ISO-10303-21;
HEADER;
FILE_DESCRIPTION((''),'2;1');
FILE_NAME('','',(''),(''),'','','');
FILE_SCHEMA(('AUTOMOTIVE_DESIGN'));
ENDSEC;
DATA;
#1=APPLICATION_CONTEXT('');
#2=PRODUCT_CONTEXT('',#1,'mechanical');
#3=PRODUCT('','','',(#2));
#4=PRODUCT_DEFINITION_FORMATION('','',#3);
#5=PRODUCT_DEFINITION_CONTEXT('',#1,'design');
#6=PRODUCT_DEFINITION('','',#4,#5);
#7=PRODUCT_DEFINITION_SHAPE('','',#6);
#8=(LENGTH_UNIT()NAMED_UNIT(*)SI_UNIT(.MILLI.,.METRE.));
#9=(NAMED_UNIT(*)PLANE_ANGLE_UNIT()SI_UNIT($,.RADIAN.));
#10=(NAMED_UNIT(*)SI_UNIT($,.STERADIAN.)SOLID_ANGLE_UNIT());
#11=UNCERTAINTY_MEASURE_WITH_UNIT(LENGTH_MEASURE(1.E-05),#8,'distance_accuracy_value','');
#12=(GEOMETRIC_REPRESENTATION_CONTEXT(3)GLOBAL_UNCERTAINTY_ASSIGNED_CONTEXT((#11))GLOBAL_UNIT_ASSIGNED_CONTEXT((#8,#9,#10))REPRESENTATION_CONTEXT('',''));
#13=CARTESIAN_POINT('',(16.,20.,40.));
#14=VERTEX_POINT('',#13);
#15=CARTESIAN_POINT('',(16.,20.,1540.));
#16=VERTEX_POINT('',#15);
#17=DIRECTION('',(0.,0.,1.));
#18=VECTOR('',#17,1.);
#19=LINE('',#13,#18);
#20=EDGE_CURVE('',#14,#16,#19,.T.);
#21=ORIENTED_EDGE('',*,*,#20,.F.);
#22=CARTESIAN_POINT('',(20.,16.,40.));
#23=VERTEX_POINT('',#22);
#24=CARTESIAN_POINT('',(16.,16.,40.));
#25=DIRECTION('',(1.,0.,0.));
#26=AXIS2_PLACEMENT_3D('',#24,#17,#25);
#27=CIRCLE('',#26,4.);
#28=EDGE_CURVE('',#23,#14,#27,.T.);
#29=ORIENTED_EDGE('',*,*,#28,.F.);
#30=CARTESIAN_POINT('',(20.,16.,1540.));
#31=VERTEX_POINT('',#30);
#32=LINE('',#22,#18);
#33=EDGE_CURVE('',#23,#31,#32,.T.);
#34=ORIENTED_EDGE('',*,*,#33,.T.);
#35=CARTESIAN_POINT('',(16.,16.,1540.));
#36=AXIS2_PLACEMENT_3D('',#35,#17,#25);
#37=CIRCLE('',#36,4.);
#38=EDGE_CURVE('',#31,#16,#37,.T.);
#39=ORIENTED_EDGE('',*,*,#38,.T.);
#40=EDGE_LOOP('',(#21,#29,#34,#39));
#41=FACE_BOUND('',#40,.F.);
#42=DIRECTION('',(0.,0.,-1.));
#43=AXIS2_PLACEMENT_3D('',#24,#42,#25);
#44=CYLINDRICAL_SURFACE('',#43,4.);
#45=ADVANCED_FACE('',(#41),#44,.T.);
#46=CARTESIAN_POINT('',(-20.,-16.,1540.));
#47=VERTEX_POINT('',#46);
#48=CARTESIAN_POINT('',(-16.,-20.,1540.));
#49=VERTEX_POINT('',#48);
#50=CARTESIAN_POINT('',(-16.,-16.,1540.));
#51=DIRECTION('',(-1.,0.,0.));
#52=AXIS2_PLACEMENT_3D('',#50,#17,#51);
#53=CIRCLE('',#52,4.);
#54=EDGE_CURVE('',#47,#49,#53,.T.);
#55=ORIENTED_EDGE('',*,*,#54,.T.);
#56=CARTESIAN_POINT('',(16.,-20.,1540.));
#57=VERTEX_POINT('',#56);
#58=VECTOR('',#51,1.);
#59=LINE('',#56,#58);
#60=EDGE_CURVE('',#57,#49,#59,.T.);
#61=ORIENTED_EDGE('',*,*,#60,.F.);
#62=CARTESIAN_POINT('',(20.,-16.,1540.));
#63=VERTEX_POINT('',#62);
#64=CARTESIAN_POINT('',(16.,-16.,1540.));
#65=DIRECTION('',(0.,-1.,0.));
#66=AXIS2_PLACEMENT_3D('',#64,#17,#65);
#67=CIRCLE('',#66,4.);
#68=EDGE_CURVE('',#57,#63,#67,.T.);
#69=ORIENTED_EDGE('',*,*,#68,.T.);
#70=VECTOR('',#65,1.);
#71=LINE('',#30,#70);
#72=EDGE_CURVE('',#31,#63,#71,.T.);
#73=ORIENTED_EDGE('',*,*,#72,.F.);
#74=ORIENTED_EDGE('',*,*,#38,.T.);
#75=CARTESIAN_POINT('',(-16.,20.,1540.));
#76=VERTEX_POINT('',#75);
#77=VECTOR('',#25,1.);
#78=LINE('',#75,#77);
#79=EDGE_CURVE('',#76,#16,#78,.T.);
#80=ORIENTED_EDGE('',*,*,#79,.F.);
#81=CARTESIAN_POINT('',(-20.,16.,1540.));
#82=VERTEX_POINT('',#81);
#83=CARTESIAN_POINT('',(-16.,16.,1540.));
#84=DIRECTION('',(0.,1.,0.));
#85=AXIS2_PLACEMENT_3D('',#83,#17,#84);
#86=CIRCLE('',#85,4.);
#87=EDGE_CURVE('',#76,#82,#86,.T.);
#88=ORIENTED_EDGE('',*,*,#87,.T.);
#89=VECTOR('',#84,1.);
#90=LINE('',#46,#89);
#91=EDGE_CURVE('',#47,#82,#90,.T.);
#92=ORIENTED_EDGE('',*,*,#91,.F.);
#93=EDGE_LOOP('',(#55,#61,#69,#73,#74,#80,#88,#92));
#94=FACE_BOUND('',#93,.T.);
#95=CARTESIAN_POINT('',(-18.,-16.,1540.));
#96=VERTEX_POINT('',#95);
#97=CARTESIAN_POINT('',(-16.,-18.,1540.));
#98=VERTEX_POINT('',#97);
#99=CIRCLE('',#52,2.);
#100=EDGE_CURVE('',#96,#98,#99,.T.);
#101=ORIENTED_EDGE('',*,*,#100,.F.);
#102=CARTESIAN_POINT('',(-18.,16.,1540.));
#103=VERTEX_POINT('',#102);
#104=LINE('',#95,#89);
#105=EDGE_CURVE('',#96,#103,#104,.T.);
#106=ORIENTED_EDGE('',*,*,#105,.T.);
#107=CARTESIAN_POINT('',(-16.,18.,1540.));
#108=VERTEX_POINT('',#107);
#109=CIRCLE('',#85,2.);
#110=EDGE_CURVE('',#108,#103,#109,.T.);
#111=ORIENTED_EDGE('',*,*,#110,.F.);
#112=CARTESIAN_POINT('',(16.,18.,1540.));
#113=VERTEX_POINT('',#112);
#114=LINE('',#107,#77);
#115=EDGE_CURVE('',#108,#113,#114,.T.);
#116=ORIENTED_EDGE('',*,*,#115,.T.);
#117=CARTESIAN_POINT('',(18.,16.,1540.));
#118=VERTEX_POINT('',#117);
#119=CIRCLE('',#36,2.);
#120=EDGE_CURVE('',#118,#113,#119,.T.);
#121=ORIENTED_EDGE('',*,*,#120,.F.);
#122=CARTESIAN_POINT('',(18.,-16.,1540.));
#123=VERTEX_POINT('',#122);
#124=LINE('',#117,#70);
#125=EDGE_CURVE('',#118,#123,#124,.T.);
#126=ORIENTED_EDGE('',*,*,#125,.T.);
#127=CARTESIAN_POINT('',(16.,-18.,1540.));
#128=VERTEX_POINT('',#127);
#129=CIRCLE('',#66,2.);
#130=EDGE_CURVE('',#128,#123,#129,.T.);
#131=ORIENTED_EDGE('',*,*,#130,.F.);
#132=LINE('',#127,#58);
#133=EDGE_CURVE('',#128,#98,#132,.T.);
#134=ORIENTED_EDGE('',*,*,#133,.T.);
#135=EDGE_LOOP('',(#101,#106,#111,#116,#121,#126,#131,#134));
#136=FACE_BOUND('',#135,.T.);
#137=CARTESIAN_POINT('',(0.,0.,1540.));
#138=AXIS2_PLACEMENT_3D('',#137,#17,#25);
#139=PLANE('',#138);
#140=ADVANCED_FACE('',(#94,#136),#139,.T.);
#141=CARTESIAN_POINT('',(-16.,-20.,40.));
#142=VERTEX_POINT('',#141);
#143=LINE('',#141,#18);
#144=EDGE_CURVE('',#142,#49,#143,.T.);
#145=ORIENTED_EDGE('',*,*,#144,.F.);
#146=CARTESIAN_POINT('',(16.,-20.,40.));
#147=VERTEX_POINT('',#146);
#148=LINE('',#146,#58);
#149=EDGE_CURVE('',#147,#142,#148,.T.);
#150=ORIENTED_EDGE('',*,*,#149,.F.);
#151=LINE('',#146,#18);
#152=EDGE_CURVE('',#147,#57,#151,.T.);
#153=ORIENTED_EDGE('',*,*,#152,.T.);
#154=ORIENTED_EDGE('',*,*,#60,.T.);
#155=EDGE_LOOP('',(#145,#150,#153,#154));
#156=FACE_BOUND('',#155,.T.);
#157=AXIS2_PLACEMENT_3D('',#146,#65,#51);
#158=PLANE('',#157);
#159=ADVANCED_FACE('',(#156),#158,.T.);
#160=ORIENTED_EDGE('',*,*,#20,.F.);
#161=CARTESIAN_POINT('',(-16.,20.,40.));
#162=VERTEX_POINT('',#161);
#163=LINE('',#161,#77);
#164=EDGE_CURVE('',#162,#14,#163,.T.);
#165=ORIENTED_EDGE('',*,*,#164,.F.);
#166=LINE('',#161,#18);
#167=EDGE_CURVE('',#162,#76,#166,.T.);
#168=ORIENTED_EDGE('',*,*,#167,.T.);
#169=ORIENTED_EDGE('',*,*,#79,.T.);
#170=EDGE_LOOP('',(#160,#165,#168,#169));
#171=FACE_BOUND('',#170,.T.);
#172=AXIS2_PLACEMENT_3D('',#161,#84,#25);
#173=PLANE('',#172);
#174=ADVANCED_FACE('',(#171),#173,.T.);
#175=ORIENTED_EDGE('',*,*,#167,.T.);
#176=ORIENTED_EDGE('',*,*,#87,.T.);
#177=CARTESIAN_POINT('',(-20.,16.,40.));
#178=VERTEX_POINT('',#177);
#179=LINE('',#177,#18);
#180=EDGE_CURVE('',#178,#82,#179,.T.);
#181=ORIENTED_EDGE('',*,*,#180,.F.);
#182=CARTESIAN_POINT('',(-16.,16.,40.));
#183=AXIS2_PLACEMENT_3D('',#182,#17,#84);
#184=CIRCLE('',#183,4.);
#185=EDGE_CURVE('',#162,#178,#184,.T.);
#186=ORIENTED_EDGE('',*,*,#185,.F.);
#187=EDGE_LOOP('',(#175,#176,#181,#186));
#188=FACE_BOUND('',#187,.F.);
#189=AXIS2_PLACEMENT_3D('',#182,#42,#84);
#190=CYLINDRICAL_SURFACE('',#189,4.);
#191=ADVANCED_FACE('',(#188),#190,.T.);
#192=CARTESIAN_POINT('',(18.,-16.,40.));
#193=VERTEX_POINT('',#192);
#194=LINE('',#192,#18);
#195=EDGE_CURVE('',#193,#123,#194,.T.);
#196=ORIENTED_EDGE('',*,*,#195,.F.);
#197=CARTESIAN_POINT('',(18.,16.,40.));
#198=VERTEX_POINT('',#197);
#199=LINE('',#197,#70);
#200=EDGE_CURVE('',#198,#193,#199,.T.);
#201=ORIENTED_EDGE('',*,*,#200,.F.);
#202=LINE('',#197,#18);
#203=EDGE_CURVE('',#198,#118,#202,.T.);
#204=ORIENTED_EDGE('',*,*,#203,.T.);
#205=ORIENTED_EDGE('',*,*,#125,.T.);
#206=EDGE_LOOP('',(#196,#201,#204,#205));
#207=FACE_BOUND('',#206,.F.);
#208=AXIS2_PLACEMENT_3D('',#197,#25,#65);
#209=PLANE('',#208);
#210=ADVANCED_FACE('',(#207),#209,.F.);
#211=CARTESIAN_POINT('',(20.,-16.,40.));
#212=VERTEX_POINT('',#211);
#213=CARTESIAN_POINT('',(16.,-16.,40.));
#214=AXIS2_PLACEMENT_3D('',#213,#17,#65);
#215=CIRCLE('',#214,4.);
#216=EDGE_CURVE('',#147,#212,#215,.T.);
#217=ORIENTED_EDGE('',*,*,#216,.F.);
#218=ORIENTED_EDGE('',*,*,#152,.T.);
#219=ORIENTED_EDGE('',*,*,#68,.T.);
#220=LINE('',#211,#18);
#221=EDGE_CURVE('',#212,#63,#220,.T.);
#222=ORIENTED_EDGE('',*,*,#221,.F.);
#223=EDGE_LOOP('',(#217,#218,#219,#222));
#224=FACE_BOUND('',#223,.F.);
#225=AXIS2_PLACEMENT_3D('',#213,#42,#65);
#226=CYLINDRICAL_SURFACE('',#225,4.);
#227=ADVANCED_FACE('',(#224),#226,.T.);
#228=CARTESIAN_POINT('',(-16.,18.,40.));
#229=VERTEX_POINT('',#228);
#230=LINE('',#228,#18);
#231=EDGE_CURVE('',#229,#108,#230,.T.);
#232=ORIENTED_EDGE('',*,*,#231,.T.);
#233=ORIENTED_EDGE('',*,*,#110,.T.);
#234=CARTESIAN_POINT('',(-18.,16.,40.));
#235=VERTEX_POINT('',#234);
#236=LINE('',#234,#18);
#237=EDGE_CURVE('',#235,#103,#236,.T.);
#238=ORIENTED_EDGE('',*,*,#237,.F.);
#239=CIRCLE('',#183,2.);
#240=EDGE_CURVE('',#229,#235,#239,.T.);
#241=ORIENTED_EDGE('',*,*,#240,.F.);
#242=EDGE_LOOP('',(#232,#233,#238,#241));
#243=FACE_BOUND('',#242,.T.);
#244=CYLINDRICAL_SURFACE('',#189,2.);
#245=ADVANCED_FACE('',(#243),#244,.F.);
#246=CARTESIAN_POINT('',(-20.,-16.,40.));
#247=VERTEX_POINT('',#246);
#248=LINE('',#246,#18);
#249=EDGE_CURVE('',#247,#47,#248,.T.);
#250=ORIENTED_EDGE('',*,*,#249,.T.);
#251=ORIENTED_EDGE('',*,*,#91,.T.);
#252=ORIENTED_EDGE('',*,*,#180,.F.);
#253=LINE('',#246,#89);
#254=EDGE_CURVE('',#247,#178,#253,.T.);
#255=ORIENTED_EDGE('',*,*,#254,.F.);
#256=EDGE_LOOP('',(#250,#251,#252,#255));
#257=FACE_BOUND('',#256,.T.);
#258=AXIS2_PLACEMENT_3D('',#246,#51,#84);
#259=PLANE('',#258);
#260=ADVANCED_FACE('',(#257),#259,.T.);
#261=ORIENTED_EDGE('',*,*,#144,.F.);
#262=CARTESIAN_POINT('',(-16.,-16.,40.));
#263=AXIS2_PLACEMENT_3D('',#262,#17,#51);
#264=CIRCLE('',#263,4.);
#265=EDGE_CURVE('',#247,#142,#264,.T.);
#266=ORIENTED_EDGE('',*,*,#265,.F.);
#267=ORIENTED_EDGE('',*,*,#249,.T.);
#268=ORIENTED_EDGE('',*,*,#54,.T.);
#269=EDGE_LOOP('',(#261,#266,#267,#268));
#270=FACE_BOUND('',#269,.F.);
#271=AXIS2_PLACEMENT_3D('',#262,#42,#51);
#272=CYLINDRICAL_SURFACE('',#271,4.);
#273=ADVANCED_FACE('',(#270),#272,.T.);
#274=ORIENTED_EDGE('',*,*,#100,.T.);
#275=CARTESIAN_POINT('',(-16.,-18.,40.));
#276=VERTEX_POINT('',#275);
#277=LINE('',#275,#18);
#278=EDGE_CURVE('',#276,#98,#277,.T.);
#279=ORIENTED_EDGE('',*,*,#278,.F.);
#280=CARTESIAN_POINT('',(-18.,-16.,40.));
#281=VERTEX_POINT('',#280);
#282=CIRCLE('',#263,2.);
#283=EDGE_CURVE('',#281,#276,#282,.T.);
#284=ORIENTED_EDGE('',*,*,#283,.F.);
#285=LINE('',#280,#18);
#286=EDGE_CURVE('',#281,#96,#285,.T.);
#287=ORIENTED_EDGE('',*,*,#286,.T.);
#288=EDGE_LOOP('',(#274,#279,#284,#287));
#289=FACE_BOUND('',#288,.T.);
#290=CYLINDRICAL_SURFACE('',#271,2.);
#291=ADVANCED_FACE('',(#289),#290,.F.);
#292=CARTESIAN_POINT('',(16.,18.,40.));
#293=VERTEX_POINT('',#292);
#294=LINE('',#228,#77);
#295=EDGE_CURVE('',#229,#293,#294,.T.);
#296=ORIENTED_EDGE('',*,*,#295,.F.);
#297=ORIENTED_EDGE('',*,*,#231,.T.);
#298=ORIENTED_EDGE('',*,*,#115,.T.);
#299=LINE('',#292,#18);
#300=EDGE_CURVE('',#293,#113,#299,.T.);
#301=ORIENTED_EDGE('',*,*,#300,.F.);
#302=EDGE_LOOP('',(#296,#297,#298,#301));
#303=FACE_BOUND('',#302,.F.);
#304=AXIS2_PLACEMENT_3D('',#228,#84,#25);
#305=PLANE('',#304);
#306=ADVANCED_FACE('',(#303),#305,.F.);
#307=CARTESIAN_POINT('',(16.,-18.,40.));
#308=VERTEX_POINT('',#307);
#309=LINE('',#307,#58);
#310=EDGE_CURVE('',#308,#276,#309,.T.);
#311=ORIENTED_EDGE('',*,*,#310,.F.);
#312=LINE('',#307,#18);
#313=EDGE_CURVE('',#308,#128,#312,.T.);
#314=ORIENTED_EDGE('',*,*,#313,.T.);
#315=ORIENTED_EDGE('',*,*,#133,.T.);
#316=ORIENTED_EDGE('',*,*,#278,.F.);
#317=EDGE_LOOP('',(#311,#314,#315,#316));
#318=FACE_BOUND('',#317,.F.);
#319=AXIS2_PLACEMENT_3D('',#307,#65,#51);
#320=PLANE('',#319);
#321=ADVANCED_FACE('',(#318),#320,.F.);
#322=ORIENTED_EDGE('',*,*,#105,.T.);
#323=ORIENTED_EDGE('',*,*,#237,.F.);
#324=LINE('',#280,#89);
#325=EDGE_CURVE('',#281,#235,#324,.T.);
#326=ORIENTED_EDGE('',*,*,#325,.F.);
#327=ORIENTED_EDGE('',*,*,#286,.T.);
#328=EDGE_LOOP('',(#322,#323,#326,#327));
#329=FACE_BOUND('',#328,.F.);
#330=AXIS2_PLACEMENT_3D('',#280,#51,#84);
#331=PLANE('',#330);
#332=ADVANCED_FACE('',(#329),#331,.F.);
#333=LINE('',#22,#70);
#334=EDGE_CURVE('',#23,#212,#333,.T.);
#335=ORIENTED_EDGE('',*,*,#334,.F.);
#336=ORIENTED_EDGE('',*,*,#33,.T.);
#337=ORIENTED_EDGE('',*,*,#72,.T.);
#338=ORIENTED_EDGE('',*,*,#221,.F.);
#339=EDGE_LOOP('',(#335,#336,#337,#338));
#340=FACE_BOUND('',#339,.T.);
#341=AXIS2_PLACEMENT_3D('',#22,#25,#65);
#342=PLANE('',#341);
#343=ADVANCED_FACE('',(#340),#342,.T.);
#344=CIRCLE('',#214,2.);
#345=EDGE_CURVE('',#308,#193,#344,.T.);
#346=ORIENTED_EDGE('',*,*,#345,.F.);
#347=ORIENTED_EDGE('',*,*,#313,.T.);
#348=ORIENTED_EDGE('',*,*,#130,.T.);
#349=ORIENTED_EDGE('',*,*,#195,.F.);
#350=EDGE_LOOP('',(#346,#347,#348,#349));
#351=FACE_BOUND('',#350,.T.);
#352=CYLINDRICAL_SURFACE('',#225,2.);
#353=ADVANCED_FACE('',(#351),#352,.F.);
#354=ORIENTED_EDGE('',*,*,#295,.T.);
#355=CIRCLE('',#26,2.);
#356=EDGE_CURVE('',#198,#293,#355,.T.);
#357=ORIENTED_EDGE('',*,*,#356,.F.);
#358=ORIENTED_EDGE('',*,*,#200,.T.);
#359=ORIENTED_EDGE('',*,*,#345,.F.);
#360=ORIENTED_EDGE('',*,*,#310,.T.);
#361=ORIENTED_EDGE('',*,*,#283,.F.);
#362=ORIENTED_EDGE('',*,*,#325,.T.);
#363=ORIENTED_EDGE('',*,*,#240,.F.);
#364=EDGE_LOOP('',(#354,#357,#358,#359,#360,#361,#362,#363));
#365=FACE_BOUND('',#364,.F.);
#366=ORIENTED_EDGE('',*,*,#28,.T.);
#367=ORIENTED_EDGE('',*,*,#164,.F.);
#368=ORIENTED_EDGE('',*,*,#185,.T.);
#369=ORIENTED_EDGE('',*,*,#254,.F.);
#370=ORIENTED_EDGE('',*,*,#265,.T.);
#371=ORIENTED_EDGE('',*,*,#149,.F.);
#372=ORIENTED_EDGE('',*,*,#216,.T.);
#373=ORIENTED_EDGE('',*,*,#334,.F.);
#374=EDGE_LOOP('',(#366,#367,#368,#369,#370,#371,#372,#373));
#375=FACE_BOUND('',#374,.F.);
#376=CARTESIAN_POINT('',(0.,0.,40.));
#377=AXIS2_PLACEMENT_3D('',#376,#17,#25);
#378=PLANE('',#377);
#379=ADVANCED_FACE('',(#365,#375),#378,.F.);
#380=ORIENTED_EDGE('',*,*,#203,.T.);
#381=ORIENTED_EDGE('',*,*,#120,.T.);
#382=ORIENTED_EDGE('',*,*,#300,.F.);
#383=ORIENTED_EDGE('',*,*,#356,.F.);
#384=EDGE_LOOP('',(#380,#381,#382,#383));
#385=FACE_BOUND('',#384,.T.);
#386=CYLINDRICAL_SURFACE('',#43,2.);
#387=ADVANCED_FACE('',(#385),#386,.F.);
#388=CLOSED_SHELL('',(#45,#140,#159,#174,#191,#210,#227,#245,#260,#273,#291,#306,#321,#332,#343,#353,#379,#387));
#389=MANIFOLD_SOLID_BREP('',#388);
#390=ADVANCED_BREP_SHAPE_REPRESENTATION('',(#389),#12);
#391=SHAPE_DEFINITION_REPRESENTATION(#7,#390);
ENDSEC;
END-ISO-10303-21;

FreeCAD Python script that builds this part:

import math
import FreeCAD as App
import Part
import Sketcher

V = App.Vector
Q = App.Units.Quantity

doc = App.newDocument("Part")
body = doc.addObject("PartDesign::Body", "Body")

sketch1 = doc.addObject("Sketcher::SketchObject", "Sketch")
body.addObject(sketch1)
sketch1.AttachmentSupport = (doc.XY_Plane, [""])
sketch1.MapMode = "FlatFace"
sketch1.AttachmentOffset = App.Placement(V(0, 0, 40), App.Rotation())
sketch1.addGeometry([
    Part.LineSegment(V(-20, 16, 0), V(-20, -16, 0)),
    Part.ArcOfCircle(Part.Circle(V(-16, -16, 0), V(0, 0, 1), 4), math.radians(180), math.radians(270)),
    Part.LineSegment(V(-16, -20, 0), V(16, -20, 0)),
    Part.ArcOfCircle(Part.Circle(V(16, -16, 0), V(0, 0, 1), 4), math.radians(-90), math.radians(0)),
    Part.LineSegment(V(20, -16, 0), V(20, 16, 0)),
    Part.ArcOfCircle(Part.Circle(V(16, 16, 0), V(0, 0, 1), 4), math.radians(0), math.radians(90)),
    Part.LineSegment(V(16, 20, 0), V(-16, 20, 0)),
    Part.ArcOfCircle(Part.Circle(V(-16, 16, 0), V(0, 0, 1), 4), math.radians(90), math.radians(180)),
    Part.ArcOfCircle(Part.Circle(V(-16, 16, 0), V(0, 0, 1), 2), math.radians(90), math.radians(180)),
    Part.LineSegment(V(-16, 18, 0), V(16, 18, 0)),
    Part.ArcOfCircle(Part.Circle(V(16, 16, 0), V(0, 0, 1), 2), math.radians(0), math.radians(90)),
    Part.LineSegment(V(18, 16, 0), V(18, -16, 0)),
    Part.ArcOfCircle(Part.Circle(V(16, -16, 0), V(0, 0, 1), 2), math.radians(-90), math.radians(0)),
    Part.LineSegment(V(16, -18, 0), V(-16, -18, 0)),
    Part.ArcOfCircle(Part.Circle(V(-16, -16, 0), V(0, 0, 1), 2), math.radians(180), math.radians(270)),
    Part.LineSegment(V(-18, -16, 0), V(-18, 16, 0)),
], False)
sketch1.addConstraint([
    Sketcher.Constraint("Tangent", 0, 2, 1, 1),
    Sketcher.Constraint("Tangent", 1, 2, 2, 1),
    Sketcher.Constraint("Tangent", 2, 2, 3, 1),
    Sketcher.Constraint("Tangent", 3, 2, 4, 1),
    Sketcher.Constraint("Tangent", 4, 2, 5, 1),
    Sketcher.Constraint("Tangent", 5, 2, 6, 1),
    Sketcher.Constraint("Tangent", 6, 2, 7, 1),
    Sketcher.Constraint("Tangent", 7, 2, 0, 1),
    Sketcher.Constraint("Tangent", 8, 1, 9, 1),
    Sketcher.Constraint("Tangent", 9, 2, 10, 2),
    Sketcher.Constraint("Tangent", 10, 1, 11, 1),
    Sketcher.Constraint("Tangent", 11, 2, 12, 2),
    Sketcher.Constraint("Tangent", 12, 1, 13, 1),
    Sketcher.Constraint("Tangent", 13, 2, 14, 2),
    Sketcher.Constraint("Tangent", 14, 1, 15, 1),
    Sketcher.Constraint("Tangent", 15, 2, 8, 2),
    Sketcher.Constraint("Vertical", 0),
    Sketcher.Constraint("Horizontal", 2),
    Sketcher.Constraint("Vertical", 4),
    Sketcher.Constraint("Horizontal", 6),
    Sketcher.Constraint("Horizontal", 9),
    Sketcher.Constraint("Vertical", 11),
    Sketcher.Constraint("Horizontal", 13),
    Sketcher.Constraint("Vertical", 15),
    Sketcher.Constraint("Coincident", 8, 3, 7, 3),
    Sketcher.Constraint("Coincident", 10, 3, 5, 3),
    Sketcher.Constraint("Coincident", 12, 3, 3, 3),
    Sketcher.Constraint("Equal", 1, 3),
    Sketcher.Constraint("Equal", 3, 5),
    Sketcher.Constraint("Equal", 5, 7),
    Sketcher.Constraint("Equal", 12, 14),
    Sketcher.Constraint("Symmetric", 1, 3, 5, 3, -1, 1),
    Sketcher.Constraint("Equal", 13, 0),
    Sketcher.Constraint("Radius", 1, Q("4 mm")),
    Sketcher.Constraint("Radius", 8, Q("2 mm")),
    Sketcher.Constraint("DistanceX", 0, 2, -1, 1, Q("20 mm")),
])
pad1 = doc.addObject("PartDesign::Pad", "Pad")
body.addObject(pad1)
pad1.Profile = sketch1
pad1.Length = 1500

doc.recompute()
